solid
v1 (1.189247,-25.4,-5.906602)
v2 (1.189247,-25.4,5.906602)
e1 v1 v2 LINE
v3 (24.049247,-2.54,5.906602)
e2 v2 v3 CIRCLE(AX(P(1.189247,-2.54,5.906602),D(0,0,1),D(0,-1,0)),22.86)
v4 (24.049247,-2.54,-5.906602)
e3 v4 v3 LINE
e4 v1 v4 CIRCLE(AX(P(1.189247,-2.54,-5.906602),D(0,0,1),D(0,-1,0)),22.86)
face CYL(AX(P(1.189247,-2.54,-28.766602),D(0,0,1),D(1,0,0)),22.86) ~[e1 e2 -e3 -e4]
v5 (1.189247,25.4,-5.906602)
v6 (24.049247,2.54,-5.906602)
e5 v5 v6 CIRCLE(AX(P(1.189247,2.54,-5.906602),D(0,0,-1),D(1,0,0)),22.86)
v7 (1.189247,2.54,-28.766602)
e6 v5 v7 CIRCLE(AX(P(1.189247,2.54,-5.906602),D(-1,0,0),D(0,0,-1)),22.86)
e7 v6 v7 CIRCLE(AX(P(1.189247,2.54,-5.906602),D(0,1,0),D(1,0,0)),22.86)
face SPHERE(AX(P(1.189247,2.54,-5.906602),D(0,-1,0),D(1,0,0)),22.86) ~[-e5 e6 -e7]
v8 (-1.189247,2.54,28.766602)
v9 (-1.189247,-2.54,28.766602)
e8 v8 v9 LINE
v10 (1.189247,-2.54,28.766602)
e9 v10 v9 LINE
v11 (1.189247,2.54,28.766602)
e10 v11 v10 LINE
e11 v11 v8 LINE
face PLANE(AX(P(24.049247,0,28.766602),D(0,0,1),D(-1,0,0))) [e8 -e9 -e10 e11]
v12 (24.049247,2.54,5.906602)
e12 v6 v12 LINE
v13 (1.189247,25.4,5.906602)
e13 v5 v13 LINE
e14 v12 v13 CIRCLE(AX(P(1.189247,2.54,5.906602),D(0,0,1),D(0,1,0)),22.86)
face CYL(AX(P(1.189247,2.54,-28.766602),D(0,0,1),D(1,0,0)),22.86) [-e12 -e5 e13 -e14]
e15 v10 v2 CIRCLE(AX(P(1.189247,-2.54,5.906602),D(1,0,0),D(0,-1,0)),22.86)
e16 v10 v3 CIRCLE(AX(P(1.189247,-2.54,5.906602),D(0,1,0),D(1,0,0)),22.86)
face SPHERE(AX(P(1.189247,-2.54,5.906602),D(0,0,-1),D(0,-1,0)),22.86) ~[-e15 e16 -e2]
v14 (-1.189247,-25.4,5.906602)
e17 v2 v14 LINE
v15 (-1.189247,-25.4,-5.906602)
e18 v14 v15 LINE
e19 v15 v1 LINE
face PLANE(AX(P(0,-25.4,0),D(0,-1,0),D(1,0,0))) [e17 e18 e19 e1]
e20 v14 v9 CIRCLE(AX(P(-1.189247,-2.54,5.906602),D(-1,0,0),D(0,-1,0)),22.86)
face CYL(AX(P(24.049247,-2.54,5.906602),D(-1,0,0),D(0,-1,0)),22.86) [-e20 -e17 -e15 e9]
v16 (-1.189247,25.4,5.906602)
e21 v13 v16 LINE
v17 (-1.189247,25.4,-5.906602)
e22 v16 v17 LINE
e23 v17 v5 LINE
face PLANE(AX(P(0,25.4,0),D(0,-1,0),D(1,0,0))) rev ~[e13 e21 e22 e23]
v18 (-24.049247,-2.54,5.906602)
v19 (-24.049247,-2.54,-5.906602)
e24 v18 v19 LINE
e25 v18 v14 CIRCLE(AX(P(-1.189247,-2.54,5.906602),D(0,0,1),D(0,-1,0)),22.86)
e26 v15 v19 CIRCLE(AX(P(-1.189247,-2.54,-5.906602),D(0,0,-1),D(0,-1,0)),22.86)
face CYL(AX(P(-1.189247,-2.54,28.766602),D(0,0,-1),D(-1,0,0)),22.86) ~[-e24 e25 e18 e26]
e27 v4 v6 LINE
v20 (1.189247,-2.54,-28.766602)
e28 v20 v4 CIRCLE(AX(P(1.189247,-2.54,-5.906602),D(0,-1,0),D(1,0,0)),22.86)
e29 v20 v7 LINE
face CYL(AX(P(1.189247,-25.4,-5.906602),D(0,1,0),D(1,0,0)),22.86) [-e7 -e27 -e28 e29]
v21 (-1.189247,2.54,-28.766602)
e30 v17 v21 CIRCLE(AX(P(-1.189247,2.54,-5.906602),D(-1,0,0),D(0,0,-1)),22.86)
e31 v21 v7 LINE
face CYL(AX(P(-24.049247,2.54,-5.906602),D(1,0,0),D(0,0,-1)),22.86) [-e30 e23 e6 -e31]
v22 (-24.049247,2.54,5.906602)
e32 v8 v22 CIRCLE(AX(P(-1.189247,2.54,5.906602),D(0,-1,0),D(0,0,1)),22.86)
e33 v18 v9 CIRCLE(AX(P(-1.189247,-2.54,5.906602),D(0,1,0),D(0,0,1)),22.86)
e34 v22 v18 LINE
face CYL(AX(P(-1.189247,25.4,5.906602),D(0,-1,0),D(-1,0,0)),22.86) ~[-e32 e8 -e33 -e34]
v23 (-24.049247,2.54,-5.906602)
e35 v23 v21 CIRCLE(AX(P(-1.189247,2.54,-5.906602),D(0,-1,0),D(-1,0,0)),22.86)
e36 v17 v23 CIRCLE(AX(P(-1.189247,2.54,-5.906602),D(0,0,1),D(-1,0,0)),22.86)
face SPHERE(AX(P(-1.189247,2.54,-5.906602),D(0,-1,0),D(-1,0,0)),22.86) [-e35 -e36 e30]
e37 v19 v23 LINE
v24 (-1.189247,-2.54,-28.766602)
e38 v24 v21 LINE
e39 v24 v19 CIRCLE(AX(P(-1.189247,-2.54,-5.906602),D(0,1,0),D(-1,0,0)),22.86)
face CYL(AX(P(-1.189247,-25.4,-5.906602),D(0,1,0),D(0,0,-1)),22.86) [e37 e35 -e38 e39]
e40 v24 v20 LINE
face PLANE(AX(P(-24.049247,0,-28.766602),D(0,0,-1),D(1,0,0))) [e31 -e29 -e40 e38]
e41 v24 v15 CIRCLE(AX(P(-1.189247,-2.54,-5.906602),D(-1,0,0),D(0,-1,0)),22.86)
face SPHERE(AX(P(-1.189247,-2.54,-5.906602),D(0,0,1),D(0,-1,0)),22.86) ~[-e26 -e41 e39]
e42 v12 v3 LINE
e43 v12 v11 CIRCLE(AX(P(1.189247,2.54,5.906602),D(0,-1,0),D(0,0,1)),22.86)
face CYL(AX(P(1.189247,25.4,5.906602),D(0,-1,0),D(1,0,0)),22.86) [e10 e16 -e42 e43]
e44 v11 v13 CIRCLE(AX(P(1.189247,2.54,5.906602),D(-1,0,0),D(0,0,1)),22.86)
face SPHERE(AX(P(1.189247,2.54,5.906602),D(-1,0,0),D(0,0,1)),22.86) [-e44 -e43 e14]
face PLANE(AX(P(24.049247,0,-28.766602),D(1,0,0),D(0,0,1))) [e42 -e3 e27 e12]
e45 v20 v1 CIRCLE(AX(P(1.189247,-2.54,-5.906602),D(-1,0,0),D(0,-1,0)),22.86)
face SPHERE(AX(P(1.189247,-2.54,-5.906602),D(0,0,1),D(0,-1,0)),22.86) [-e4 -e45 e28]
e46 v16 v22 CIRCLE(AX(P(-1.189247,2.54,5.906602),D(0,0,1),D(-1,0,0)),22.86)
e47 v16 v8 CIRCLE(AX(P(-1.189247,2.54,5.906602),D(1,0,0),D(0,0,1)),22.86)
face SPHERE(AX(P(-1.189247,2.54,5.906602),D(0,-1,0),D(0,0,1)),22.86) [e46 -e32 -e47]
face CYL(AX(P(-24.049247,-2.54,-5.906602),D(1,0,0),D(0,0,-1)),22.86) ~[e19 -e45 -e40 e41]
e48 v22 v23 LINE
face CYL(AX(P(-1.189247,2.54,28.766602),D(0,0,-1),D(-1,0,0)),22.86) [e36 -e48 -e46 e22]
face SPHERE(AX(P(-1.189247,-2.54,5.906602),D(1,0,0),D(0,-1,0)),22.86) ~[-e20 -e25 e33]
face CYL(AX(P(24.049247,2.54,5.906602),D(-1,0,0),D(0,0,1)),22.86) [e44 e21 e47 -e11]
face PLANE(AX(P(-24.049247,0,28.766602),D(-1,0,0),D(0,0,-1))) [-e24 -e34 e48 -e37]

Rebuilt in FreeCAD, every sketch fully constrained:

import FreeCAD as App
import Part
import Sketcher
from FreeCAD import Vector
Q = App.Units.Quantity


def add_polygon(sketch, points):
    """Adds a closed chain of lines whose ends are joined by coincident constraints."""
    first, n = sketch.GeometryCount, len(points)
    for a, b in zip(points, points[1:] + points[:1]):
        sketch.addGeometry(Part.LineSegment(App.Vector(*a, 0), App.Vector(*b, 0)), False)
    for i in range(n):
        sketch.addConstraint(Sketcher.Constraint("Coincident", first + i, 2, first + (i + 1) % n, 1))

doc = App.newDocument("Part")
body = doc.addObject("PartDesign::Body", "Body")

# Sketch on XZ plane
sketch1 = body.newObject("Sketcher::SketchObject", "Sketch")
sketch1.AttachmentSupport = (doc.getObject("XZ_Plane"), [""])
sketch1.MapMode = "FlatFace"
add_polygon(sketch1, [(24, -29), (24, 29), (-24, 29), (-24, -29)])  # lines 0-3
sketch1.addConstraint(Sketcher.Constraint("Vertical", 0))
sketch1.addConstraint(Sketcher.Constraint("Horizontal", 1))
sketch1.addConstraint(Sketcher.Constraint("Vertical", 2))
sketch1.addConstraint(Sketcher.Constraint("Horizontal", 3))
sketch1.addConstraint(Sketcher.Constraint("Symmetric", 0, 2, 2, 2, -1, 1))
sketch1.addConstraint(Sketcher.Constraint("DistanceY", -1, 1, 0, 2, Q("28.766602 mm")))
sketch1.addConstraint(Sketcher.Constraint("DistanceX", 1, 2, 1, 1, Q("48.098494 mm")))
pad1 = body.newObject("PartDesign::Pad", "Pad")
pad1.Profile = sketch1
pad1.Type = "TwoLengths"
pad1.Length = Q("1 in")
pad1.Length2 = Q("1 in")
doc.recompute()

fillet = body.newObject("PartDesign::Fillet", "Fillet")
fillet.Base = (pad1, ["Edge1"])
fillet.UseAllEdges = True
fillet.Radius = Q("0.9 in")

doc.recompute()
